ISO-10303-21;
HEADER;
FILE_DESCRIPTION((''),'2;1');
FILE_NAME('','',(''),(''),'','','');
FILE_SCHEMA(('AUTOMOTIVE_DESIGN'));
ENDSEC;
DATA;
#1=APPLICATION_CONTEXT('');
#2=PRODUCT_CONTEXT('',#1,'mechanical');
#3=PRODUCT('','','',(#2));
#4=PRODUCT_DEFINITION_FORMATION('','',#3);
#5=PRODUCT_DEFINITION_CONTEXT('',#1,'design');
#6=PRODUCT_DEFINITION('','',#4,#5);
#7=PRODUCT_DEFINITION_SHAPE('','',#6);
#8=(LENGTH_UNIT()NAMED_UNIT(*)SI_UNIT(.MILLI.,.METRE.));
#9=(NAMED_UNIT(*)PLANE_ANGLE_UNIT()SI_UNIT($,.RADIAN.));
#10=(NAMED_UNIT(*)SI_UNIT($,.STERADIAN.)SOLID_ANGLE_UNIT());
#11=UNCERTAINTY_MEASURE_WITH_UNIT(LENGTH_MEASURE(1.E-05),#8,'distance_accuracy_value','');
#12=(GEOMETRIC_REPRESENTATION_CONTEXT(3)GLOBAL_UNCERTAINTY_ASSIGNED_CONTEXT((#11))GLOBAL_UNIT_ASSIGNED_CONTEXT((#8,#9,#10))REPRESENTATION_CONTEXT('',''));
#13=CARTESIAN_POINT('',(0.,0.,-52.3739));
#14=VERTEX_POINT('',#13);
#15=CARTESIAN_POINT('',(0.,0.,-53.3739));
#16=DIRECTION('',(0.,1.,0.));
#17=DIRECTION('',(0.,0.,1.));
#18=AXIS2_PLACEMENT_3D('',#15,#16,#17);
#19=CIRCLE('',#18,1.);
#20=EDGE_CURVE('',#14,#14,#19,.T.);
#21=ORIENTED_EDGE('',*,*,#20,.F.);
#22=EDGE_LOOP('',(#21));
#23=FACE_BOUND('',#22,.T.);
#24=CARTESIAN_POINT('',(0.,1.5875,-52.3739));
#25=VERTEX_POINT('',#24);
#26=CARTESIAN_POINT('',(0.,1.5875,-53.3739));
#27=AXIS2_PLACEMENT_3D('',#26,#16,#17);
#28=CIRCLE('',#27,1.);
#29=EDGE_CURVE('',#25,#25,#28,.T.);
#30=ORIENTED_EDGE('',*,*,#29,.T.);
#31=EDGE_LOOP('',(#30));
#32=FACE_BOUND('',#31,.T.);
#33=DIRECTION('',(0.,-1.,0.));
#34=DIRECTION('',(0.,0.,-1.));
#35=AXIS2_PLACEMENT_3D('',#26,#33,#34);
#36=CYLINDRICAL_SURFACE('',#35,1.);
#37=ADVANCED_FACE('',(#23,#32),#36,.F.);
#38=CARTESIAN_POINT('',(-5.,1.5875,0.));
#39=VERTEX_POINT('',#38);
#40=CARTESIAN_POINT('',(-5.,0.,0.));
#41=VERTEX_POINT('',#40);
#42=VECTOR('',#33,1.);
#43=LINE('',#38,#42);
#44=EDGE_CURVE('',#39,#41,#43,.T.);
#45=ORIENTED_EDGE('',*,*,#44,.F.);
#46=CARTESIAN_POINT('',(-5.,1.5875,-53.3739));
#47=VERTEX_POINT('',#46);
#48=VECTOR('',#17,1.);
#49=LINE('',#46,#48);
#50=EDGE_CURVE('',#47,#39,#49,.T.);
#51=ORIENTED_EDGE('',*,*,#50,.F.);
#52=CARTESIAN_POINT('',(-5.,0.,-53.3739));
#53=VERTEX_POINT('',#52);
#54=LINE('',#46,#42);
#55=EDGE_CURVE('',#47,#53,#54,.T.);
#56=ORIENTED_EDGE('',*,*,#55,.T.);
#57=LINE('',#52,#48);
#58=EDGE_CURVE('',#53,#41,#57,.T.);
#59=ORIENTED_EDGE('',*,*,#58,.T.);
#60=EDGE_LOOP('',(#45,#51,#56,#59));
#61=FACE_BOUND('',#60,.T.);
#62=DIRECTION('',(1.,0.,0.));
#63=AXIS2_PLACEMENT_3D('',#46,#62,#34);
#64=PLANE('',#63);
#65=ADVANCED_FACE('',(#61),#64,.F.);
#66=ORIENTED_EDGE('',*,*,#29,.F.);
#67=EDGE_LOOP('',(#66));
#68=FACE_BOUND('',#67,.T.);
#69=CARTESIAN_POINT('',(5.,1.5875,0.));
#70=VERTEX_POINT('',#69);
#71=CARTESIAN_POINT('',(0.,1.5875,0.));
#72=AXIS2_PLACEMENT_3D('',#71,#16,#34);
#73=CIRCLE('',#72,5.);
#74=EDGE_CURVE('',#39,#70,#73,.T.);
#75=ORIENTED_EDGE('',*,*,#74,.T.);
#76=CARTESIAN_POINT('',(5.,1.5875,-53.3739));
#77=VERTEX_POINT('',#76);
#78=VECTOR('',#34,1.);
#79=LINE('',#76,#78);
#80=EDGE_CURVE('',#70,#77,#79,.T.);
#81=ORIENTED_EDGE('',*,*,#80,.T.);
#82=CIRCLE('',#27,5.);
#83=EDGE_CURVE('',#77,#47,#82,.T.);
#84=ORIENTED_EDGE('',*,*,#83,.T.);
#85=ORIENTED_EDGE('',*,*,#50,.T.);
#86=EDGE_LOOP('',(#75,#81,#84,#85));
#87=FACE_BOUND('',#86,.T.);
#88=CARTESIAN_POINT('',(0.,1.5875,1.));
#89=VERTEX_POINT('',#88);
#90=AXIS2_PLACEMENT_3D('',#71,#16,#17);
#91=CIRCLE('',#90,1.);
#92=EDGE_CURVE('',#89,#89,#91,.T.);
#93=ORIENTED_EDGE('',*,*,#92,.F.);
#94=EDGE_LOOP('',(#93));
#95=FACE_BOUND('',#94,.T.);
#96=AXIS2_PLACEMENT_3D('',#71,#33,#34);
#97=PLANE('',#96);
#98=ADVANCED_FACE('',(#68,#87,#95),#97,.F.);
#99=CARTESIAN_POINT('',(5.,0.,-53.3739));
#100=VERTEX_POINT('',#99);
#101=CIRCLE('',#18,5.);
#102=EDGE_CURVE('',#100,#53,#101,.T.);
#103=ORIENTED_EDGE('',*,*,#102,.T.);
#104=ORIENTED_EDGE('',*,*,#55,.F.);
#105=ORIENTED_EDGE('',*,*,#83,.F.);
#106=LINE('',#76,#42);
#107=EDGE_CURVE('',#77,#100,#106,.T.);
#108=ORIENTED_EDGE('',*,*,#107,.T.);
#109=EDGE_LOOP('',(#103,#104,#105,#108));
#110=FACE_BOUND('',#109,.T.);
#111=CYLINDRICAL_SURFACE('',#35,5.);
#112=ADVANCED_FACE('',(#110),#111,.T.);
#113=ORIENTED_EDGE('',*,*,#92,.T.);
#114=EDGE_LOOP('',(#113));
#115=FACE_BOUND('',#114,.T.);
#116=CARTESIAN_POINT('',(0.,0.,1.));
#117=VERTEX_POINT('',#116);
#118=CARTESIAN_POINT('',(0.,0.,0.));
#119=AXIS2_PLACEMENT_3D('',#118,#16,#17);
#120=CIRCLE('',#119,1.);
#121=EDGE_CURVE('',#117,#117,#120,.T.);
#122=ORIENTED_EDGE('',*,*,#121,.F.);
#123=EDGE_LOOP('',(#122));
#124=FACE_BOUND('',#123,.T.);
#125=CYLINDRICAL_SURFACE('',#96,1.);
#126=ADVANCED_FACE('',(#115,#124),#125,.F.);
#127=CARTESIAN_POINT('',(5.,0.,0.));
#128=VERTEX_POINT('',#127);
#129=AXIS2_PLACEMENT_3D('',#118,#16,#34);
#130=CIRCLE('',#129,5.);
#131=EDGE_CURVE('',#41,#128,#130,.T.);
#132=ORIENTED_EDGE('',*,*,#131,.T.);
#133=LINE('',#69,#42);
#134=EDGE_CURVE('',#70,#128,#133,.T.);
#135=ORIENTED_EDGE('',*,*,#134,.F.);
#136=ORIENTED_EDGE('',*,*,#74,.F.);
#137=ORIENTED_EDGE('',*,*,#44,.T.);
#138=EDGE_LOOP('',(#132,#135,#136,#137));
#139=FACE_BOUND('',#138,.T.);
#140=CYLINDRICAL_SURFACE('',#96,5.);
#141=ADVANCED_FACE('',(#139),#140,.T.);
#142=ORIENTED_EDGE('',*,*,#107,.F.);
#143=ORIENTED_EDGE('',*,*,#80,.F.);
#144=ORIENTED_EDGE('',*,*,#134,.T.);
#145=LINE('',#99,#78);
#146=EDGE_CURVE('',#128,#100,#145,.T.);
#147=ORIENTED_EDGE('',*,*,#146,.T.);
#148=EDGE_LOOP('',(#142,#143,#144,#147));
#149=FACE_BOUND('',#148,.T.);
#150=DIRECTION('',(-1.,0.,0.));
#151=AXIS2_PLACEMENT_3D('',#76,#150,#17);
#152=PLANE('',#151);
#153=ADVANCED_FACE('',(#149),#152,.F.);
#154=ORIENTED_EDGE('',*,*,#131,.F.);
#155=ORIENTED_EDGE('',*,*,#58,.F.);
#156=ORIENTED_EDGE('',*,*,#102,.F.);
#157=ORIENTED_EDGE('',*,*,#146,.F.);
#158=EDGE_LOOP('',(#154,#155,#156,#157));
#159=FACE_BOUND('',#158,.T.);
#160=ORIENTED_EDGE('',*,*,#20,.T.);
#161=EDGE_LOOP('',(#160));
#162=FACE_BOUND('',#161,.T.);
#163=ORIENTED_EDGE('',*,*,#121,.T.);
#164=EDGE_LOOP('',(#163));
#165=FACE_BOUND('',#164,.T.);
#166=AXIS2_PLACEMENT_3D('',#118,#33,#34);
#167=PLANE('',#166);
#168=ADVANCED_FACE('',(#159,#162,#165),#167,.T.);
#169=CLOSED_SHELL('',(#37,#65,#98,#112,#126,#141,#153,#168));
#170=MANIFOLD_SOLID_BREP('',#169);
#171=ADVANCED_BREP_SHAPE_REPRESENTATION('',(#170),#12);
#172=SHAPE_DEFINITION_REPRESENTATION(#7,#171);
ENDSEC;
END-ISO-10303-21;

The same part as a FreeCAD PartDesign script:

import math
import FreeCAD as App
import Part
import Sketcher
Q = App.Units.Quantity

doc = App.newDocument("Part")
body = doc.addObject("PartDesign::Body", "Body")

# Sketch on XZ plane
sketch1 = body.newObject("Sketcher::SketchObject", "Sketch")
sketch1.AttachmentSupport = (doc.getObject("XZ_Plane"), [""])
sketch1.MapMode = "FlatFace"
sketch1.addGeometry([
    Part.LineSegment(App.Vector(-5, -53.4, 0), App.Vector(-5, 0, 0)),  # 0
    Part.ArcOfCircle(Part.Circle(App.Vector(0, 0, 0), App.Vector(0, 0, 1), 5), math.radians(0), math.radians(180)),  # 1
    Part.LineSegment(App.Vector(5, 0, 0), App.Vector(5, -53.4, 0)),  # 2
    Part.ArcOfCircle(Part.Circle(App.Vector(0, -53.4, 0), App.Vector(0, 0, 1), 5), math.radians(180), math.radians(360)),  # 3
    Part.Circle(App.Vector(0, 0, 0), App.Vector(0, 0, 1), 1),  # 4
    Part.Circle(App.Vector(0, -53.4, 0), App.Vector(0, 0, 1), 1),  # 5
], False)
sketch1.addConstraint([
    Sketcher.Constraint("Tangent", 0, 2, 1, 2),
    Sketcher.Constraint("Tangent", 1, 1, 2, 1),
    Sketcher.Constraint("Tangent", 2, 2, 3, 2),
    Sketcher.Constraint("Tangent", 3, 1, 0, 1),
    Sketcher.Constraint("Vertical", 0),
    Sketcher.Constraint("Vertical", 2),
    Sketcher.Constraint("Coincident", 1, 3, -1, 1),
    Sketcher.Constraint("Coincident", 4, 3, -1, 1),
    Sketcher.Constraint("Coincident", 5, 3, 3, 3),
    Sketcher.Constraint("Equal", 4, 5),
    Sketcher.Constraint("Diameter", 4, Q("2 mm")),
    Sketcher.Constraint("Radius", 1, Q("5 mm")),
    Sketcher.Constraint("DistanceY", 0, 1, 0, 2, Q("53.3739 mm")),
])
pad1 = body.newObject("PartDesign::Pad", "Pad")
pad1.Profile = sketch1
pad1.Length = 1.5875
pad1.Reversed = True

doc.recompute()
